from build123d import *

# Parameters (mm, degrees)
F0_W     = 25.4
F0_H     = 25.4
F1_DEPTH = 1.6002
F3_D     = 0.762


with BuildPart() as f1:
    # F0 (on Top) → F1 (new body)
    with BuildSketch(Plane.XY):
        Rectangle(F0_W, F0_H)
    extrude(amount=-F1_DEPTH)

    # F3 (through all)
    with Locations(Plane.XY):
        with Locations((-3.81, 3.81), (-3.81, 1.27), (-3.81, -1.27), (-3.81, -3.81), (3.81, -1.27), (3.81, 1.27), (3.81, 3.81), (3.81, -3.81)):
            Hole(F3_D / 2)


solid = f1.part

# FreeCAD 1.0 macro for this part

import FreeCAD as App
import Part
import Sketcher

V = App.Vector
Q = App.Units.Quantity

doc = App.newDocument("Part")
body = doc.addObject("PartDesign::Body", "Body")

# Sketch on XY plane
sketch1 = body.newObject("Sketcher::SketchObject", "Sketch")
sketch1.AttachmentSupport = (doc.getObject("XY_Plane"), [""])
sketch1.MapMode = "FlatFace"
sketch1.addGeometry(Part.LineSegment(V(-12.7, 12.7, 0), V(-12.7, -12.7, 0)), False)
sketch1.addGeometry(Part.LineSegment(V(-12.7, -12.7, 0), V(12.7, -12.7, 0)), False)
sketch1.addGeometry(Part.LineSegment(V(12.7, -12.7, 0), V(12.7, 12.7, 0)), False)
sketch1.addGeometry(Part.LineSegment(V(12.7, 12.7, 0), V(-12.7, 12.7, 0)), False)
sketch1.addConstraint(Sketcher.Constraint("Coincident", 0, 2, 1, 1))
sketch1.addConstraint(Sketcher.Constraint("Coincident", 1, 2, 2, 1))
sketch1.addConstraint(Sketcher.Constraint("Coincident", 2, 2, 3, 1))
sketch1.addConstraint(Sketcher.Constraint("Coincident", 3, 2, 0, 1))
sketch1.addConstraint(Sketcher.Constraint("Vertical", 0))
sketch1.addConstraint(Sketcher.Constraint("Horizontal", 1))
sketch1.addConstraint(Sketcher.Constraint("Vertical", 2))
sketch1.addConstraint(Sketcher.Constraint("Horizontal", 3))
sketch1.addConstraint(Sketcher.Constraint("Symmetric", 0, 2, 2, 2, -1, 1))
sketch1.addConstraint(Sketcher.Constraint("Equal", 3, 0))
sketch1.addConstraint(Sketcher.Constraint("DistanceX", 1, 1, 1, 2, Q("1 in")))
pad1 = body.newObject("PartDesign::Pad", "Pad")
pad1.Profile = sketch1
pad1.Length = Q("0.063 in")
pad1.Reversed = True

# Sketch on XY plane
sketch2 = body.newObject("Sketcher::SketchObject", "Sketch001")
sketch2.AttachmentSupport = (doc.getObject("XY_Plane"), [""])
sketch2.MapMode = "FlatFace"
sketch2.addGeometry(Part.Circle(V(-3.81, 3.81, 0), V(0, 0, 1), 0.381), False)
sketch2.addGeometry(Part.Circle(V(-3.81, 1.27, 0), V(0, 0, 1), 0.381), False)
sketch2.addGeometry(Part.Circle(V(-3.81, -1.27, 0), V(0, 0, 1), 0.381), False)
sketch2.addGeometry(Part.Circle(V(-3.81, -3.81, 0), V(0, 0, 1), 0.381), False)
sketch2.addGeometry(Part.Circle(V(3.81, -1.27, 0), V(0, 0, 1), 0.381), False)
sketch2.addGeometry(Part.Circle(V(3.81, 1.27, 0), V(0, 0, 1), 0.381), False)
sketch2.addGeometry(Part.Circle(V(3.81, 3.81, 0), V(0, 0, 1), 0.381), False)
sketch2.addGeometry(Part.Circle(V(3.81, -3.81, 0), V(0, 0, 1), 0.381), False)
sketch2.addConstraint(Sketcher.Constraint("Equal", 0, 1))
sketch2.addConstraint(Sketcher.Constraint("Equal", 1, 2))
sketch2.addConstraint(Sketcher.Constraint("Equal", 2, 3))
sketch2.addConstraint(Sketcher.Constraint("Equal", 3, 4))
sketch2.addConstraint(Sketcher.Constraint("Equal", 4, 5))
sketch2.addConstraint(Sketcher.Constraint("Equal", 5, 6))
sketch2.addConstraint(Sketcher.Constraint("Equal", 6, 7))
sketch2.addConstraint(Sketcher.Constraint("Symmetric", 1, 3, 4, 3, -1, 1))
sketch2.addConstraint(Sketcher.Constraint("Symmetric", 2, 3, 5, 3, -1, 1))
sketch2.addConstraint(Sketcher.Constraint("Symmetric", 3, 3, 6, 3, -1, 1))
sketch2.addConstraint(Sketcher.Constraint("Symmetric", 0, 3, 7, 3, -1, 1))
sketch2.addConstraint(Sketcher.Constraint("Symmetric", 2, 3, 4, 3, -2))
sketch2.addConstraint(Sketcher.Constraint("Symmetric", 0, 3, 6, 3, -2))
sketch2.addConstraint(Sketcher.Constraint("Vertical", 0, 3, 1, 3))
sketch2.addConstraint(Sketcher.Constraint("Diameter", 0, Q("0.03 in")))
sketch2.addConstraint(Sketcher.Constraint("DistanceY", 1, 3, 0, 3, Q("0.1 in")))
sketch2.addConstraint(Sketcher.Constraint("DistanceY", 2, 3, 1, 3, Q("0.1 in")))
sketch2.addConstraint(Sketcher.Constraint("DistanceX", 2, 3, 4, 3, Q("0.3 in")))
doc.recompute()
hole = body.newObject("PartDesign::Hole", "Hole")
hole.Profile = sketch2
hole.ThreadType = "None"
hole.Diameter = Q("0.03 in")
hole.DepthType = "ThroughAll"

doc.recompute()
